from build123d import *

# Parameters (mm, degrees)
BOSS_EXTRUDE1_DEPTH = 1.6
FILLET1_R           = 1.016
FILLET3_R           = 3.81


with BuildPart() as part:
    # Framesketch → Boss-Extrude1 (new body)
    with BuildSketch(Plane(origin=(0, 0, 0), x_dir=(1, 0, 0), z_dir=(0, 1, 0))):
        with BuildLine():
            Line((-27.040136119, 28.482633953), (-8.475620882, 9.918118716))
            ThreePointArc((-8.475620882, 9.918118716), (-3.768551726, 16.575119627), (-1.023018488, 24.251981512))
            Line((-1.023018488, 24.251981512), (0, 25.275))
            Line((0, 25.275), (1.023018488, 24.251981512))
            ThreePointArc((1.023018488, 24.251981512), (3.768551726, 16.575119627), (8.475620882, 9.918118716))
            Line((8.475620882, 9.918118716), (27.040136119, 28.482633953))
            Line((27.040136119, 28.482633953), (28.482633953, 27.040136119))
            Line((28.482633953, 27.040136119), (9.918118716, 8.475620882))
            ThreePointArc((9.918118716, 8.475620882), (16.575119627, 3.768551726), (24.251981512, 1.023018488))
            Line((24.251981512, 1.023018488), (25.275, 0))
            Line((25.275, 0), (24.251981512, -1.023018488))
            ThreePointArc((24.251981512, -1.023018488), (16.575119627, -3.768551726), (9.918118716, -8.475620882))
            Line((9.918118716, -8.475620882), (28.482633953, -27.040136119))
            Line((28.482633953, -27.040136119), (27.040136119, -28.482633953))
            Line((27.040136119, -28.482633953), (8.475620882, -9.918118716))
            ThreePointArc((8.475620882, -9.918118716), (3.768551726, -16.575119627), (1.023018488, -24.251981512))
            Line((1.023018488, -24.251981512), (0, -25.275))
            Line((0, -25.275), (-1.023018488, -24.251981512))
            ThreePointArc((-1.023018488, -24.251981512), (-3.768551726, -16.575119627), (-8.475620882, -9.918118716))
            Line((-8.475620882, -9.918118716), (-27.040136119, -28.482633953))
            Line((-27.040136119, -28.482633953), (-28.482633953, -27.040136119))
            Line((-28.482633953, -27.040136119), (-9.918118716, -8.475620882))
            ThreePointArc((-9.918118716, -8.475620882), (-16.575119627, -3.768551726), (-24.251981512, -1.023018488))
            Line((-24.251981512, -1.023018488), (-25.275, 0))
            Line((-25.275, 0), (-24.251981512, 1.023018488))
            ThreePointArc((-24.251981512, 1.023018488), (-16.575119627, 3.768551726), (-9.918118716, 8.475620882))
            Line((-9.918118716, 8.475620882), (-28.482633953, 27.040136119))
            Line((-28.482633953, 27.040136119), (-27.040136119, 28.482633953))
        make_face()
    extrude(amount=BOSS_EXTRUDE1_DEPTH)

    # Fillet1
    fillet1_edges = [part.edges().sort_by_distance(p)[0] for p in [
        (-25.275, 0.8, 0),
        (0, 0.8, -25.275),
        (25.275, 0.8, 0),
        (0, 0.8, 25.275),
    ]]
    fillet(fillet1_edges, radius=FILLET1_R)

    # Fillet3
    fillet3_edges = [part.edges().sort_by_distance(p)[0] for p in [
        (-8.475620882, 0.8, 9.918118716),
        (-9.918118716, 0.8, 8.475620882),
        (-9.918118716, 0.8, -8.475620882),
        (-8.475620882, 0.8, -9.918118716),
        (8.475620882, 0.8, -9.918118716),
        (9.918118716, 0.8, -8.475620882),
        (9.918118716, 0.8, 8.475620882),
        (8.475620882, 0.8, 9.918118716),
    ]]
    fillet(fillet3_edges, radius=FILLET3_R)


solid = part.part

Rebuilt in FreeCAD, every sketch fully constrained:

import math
import FreeCAD as App
import Part
import Sketcher

V = App.Vector
Q = App.Units.Quantity


def edges_at(feature, points):
    """Names of the edges that pass closest to the given points."""
    edges = feature.Shape.Edges
    near = lambda p: min(range(len(edges)), key=lambda i: edges[i].distToShape(Part.Vertex(*p))[0])
    return sorted({f"Edge{near(p) + 1}" for p in points})

doc = App.newDocument("Part")
body = doc.addObject("PartDesign::Body", "Body")

# Sketch on XZ plane
sketch1 = body.newObject("Sketcher::SketchObject", "Sketch")
sketch1.AttachmentSupport = (doc.getObject("XZ_Plane"), [""])
sketch1.MapMode = "FlatFace"
sketch1.addGeometry([
    Part.LineSegment(V(-8.475621, -9.918119, 0), V(-27.040136, -28.482634, 0)),  # 0
    Part.LineSegment(V(-27.040136, -28.482634, 0), V(-28.482634, -27.040136, 0)),  # 1
    Part.LineSegment(V(-28.482634, -27.040136, 0), V(-9.918119, -8.475621, 0)),  # 2
    Part.ArcOfCircle(Part.Circle(V(-30.445, -30.445, 0), V(0, 0, 1), 30.0667), math.radians(46.944108), math.radians(78.113361)),  # 3
    Part.LineSegment(V(-24.251982, -1.023018, 0), V(-25.275, 0, 0)),  # 4
    Part.LineSegment(V(-25.275, 0, 0), V(-24.251982, 1.023018, 0)),  # 5
    Part.ArcOfCircle(Part.Circle(V(-30.445, 30.445, 0), V(0, 0, 1), 30.0667), math.radians(-78.113361), math.radians(-46.944108)),  # 6
    Part.LineSegment(V(-9.918119, 8.475621, 0), V(-28.482634, 27.040136, 0)),  # 7
    Part.LineSegment(V(-28.482634, 27.040136, 0), V(-27.040136, 28.482634, 0)),  # 8
    Part.LineSegment(V(-27.040136, 28.482634, 0), V(-8.475621, 9.918119, 0)),  # 9
    Part.ArcOfCircle(Part.Circle(V(-30.445, 30.445, 0), V(0, 0, 1), 30.0667), math.radians(-43.055892), math.radians(-11.886639)),  # 10
    Part.LineSegment(V(-1.023018, 24.251982, 0), V(0, 25.275, 0)),  # 11
    Part.LineSegment(V(0, 25.275, 0), V(1.023018, 24.251982, 0)),  # 12
    Part.ArcOfCircle(Part.Circle(V(30.445, 30.445, 0), V(0, 0, 1), 30.0667), math.radians(-168.113361), math.radians(-136.944108)),  # 13
    Part.LineSegment(V(8.475621, 9.918119, 0), V(27.040136, 28.482634, 0)),  # 14
    Part.LineSegment(V(27.040136, 28.482634, 0), V(28.482634, 27.040136, 0)),  # 15
    Part.LineSegment(V(28.482634, 27.040136, 0), V(9.918119, 8.475621, 0)),  # 16
    Part.ArcOfCircle(Part.Circle(V(30.445, 30.445, 0), V(0, 0, 1), 30.0667), math.radians(-133.055892), math.radians(-101.886639)),  # 17
    Part.LineSegment(V(24.251982, 1.023018, 0), V(25.275, 0, 0)),  # 18
    Part.LineSegment(V(25.275, 0, 0), V(24.251982, -1.023018, 0)),  # 19
    Part.ArcOfCircle(Part.Circle(V(30.445, -30.445, 0), V(0, 0, 1), 30.0667), math.radians(101.886639), math.radians(133.055892)),  # 20
    Part.LineSegment(V(9.918119, -8.475621, 0), V(28.482634, -27.040136, 0)),  # 21
    Part.LineSegment(V(28.482634, -27.040136, 0), V(27.040136, -28.482634, 0)),  # 22
    Part.LineSegment(V(27.040136, -28.482634, 0), V(8.475621, -9.918119, 0)),  # 23
    Part.ArcOfCircle(Part.Circle(V(30.445, -30.445, 0), V(0, 0, 1), 30.0667), math.radians(136.944108), math.radians(168.113361)),  # 24
    Part.LineSegment(V(1.023018, -24.251982, 0), V(0, -25.275, 0)),  # 25
    Part.LineSegment(V(0, -25.275, 0), V(-1.023018, -24.251982, 0)),  # 26
    Part.ArcOfCircle(Part.Circle(V(-30.445, -30.445, 0), V(0, 0, 1), 30.0667), math.radians(11.886639), math.radians(43.055892)),  # 27
], False)
sketch1.addConstraint([
    Sketcher.Constraint("Coincident", 0, 2, 1, 1),
    Sketcher.Constraint("Coincident", 1, 2, 2, 1),
    Sketcher.Constraint("Coincident", 2, 2, 3, 1),
    Sketcher.Constraint("Coincident", 3, 2, 4, 1),
    Sketcher.Constraint("Coincident", 4, 2, 5, 1),
    Sketcher.Constraint("Coincident", 5, 2, 6, 1),
    Sketcher.Constraint("Coincident", 6, 2, 7, 1),
    Sketcher.Constraint("Coincident", 7, 2, 8, 1),
    Sketcher.Constraint("Coincident", 8, 2, 9, 1),
    Sketcher.Constraint("Coincident", 9, 2, 10, 1),
    Sketcher.Constraint("Coincident", 10, 2, 11, 1),
    Sketcher.Constraint("Coincident", 11, 2, 12, 1),
    Sketcher.Constraint("Coincident", 12, 2, 13, 1),
    Sketcher.Constraint("Coincident", 13, 2, 14, 1),
    Sketcher.Constraint("Coincident", 14, 2, 15, 1),
    Sketcher.Constraint("Coincident", 15, 2, 16, 1),
    Sketcher.Constraint("Coincident", 16, 2, 17, 1),
    Sketcher.Constraint("Coincident", 17, 2, 18, 1),
    Sketcher.Constraint("Coincident", 18, 2, 19, 1),
    Sketcher.Constraint("Coincident", 19, 2, 20, 1),
    Sketcher.Constraint("Coincident", 20, 2, 21, 1),
    Sketcher.Constraint("Coincident", 21, 2, 22, 1),
    Sketcher.Constraint("Coincident", 22, 2, 23, 1),
    Sketcher.Constraint("Coincident", 23, 2, 24, 1),
    Sketcher.Constraint("Coincident", 24, 2, 25, 1),
    Sketcher.Constraint("Coincident", 25, 2, 26, 1),
    Sketcher.Constraint("Coincident", 26, 2, 27, 1),
    Sketcher.Constraint("Coincident", 27, 2, 0, 1),
    Sketcher.Constraint("Coincident", 10, 3, 6, 3),
    Sketcher.Constraint("Coincident", 17, 3, 13, 3),
    Sketcher.Constraint("Coincident", 24, 3, 20, 3),
    Sketcher.Constraint("Coincident", 27, 3, 3, 3),
    Sketcher.Constraint("Equal", 3, 6),
    Sketcher.Constraint("Equal", 6, 10),
    Sketcher.Constraint("Equal", 10, 13),
    Sketcher.Constraint("Equal", 13, 17),
    Sketcher.Constraint("Equal", 17, 20),
    Sketcher.Constraint("Equal", 20, 24),
    Sketcher.Constraint("Equal", 24, 27),
    Sketcher.Constraint("Symmetric", 3, 3, 13, 3, -1, 1),
    Sketcher.Constraint("Symmetric", 6, 3, 20, 3, -1, 1),
    Sketcher.Constraint("Symmetric", 0, 2, 14, 2, -1, 1),
    Sketcher.Constraint("Symmetric", 1, 2, 15, 2, -1, 1),
    Sketcher.Constraint("Symmetric", 4, 2, 18, 2, -1, 1),
    Sketcher.Constraint("Symmetric", 7, 2, 21, 2, -1, 1),
    Sketcher.Constraint("Symmetric", 8, 2, 22, 2, -1, 1),
    Sketcher.Constraint("Symmetric", 11, 2, 25, 2, -1, 1),
    Sketcher.Constraint("Symmetric", 6, 3, 13, 3, -2),
    Sketcher.Constraint("Symmetric", 8, 2, 14, 2, -2),
    Sketcher.Constraint("Symmetric", 7, 2, 15, 2, -2),
    Sketcher.Constraint("PointOnObject", 4, 2, -1),
    Sketcher.Constraint("PointOnObject", 11, 2, -2),
    Sketcher.Constraint("Perpendicular", 0, 1),
    Sketcher.Constraint("Perpendicular", 1, 2),
    Sketcher.Constraint("Perpendicular", 2, 4),
    Sketcher.Constraint("Perpendicular", 4, 5),
    Sketcher.Constraint("Perpendicular", 5, 7),
    Sketcher.Constraint("Perpendicular", 7, 8),
    Sketcher.Constraint("Perpendicular", 8, 9),
    Sketcher.Constraint("Perpendicular", 9, 11),
    Sketcher.Constraint("Perpendicular", 11, 12),
    Sketcher.Constraint("Perpendicular", 12, 14),
    Sketcher.Constraint("Perpendicular", 15, 16),
    Sketcher.Constraint("Perpendicular", 16, 18),
    Sketcher.Constraint("Perpendicular", 18, 19),
    Sketcher.Constraint("Perpendicular", 19, 21),
    Sketcher.Constraint("Perpendicular", 22, 23),
    Sketcher.Constraint("Perpendicular", 23, 25),
    Sketcher.Constraint("Perpendicular", 25, 26),
    Sketcher.Constraint("Equal", 0, 2),
    Sketcher.Constraint("Equal", 5, 11),
    Sketcher.Constraint("Radius", 3, 30.0667),
    Sketcher.Constraint("Distance", 1, 2.04),
    Sketcher.Constraint("DistanceX", 3, 3, -1, 1, 30.445),
    Sketcher.Constraint("DistanceY", 3, 3, -1, 1, 30.445),
    Sketcher.Constraint("DistanceX", 4, 2, -1, 1, 25.275),
    Sketcher.Constraint("Distance", 0, 26.254189),
])
pad1 = body.newObject("PartDesign::Pad", "Pad")
pad1.Profile = sketch1
pad1.Length = 1.6
pad1.Reversed = True
doc.recompute()

fillet = body.newObject("PartDesign::Fillet", "Fillet")
fillet.Base = (pad1, edges_at(pad1, [
    (-25.275, 0.8, 0),
    (0, 0.8, -25.275),
    (25.275, 0.8, 0),
    (0, 0.8, 25.275),
]))
fillet.Radius = Q("0.04 in")
doc.recompute()

fillet2 = body.newObject("PartDesign::Fillet", "Fillet001")
fillet2.Base = (fillet, edges_at(fillet, [
    (-8.476, 0.8, 9.918),
    (-9.918, 0.8, 8.476),
    (-9.918, 0.8, -8.476),
    (-8.476, 0.8, -9.918),
    (8.476, 0.8, -9.918),
    (9.918, 0.8, -8.476),
    (9.918, 0.8, 8.476),
    (8.476, 0.8, 9.918),
]))
fillet2.Radius = Q("0.15 in")

doc.recompute()
